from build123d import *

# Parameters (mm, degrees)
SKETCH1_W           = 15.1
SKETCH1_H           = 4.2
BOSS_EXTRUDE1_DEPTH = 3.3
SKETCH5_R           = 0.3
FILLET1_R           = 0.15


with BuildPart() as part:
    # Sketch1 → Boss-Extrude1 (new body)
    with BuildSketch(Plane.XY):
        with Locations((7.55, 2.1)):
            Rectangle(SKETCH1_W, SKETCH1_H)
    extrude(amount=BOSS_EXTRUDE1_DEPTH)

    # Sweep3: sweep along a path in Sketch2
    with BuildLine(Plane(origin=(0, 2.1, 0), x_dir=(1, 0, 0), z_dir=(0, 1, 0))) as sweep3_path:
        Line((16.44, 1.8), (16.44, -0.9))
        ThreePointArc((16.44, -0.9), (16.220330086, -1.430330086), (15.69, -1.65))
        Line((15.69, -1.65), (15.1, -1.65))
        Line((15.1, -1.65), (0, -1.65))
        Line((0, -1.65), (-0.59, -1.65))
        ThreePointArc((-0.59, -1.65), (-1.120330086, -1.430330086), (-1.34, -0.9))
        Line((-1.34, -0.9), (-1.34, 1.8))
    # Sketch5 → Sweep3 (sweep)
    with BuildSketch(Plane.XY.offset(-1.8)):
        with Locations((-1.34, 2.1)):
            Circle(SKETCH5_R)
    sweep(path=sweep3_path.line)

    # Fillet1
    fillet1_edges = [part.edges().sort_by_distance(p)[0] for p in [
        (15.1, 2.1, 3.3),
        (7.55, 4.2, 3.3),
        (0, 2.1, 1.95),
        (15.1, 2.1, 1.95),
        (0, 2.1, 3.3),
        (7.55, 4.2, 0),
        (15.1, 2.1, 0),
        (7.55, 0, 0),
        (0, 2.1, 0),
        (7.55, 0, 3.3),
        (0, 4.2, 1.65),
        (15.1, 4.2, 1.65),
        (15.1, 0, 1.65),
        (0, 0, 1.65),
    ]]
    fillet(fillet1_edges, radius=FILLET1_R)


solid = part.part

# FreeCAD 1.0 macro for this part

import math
import FreeCAD as App
import Part
import Sketcher
from FreeCAD import Vector
Q = App.Units.Quantity


def edges_at(feature, points):
    """Names of the edges that pass closest to the given points."""
    edges = feature.Shape.Edges
    near = lambda p: min(range(len(edges)), key=lambda i: edges[i].distToShape(Part.Vertex(*p))[0])
    return sorted({f"Edge{near(p) + 1}" for p in points})


def add_polygon(sketch, points):
    """Adds a closed chain of lines whose ends are joined by coincident constraints."""
    first, n = sketch.GeometryCount, len(points)
    for a, b in zip(points, points[1:] + points[:1]):
        sketch.addGeometry(Part.LineSegment(App.Vector(*a, 0), App.Vector(*b, 0)), False)
    for i in range(n):
        sketch.addConstraint(Sketcher.Constraint("Coincident", first + i, 2, first + (i + 1) % n, 1))

doc = App.newDocument("Part")
params = doc.addObject("Spreadsheet::Sheet", "Params")
for row, (alias, value) in enumerate([
    ("sketch1_width", "15.1 mm"),
    ("sketch1_height", "4.2 mm"),
    ("pad1_length", "3.3 mm"),
    ("sketch2_diameter", "0.6 mm"),
    ("sketch3_radius", "0.75 mm"),
    ("sketch3_height", "2.7 mm"),
    ("sketch3_width", "16.28 mm"),
    ("fillet_radius", "0.15 mm"),
], start=1):
    params.set(f"A{row}", alias)
    params.set(f"B{row}", "=" + value)
    params.setAlias(f"B{row}", alias)

body = doc.addObject("PartDesign::Body", "Body")

# Sketch on XY plane
sketch1 = doc.addObject("Sketcher::SketchObject", "Sketch")
body.addObject(sketch1)
sketch1.AttachmentSupport = (doc.XY_Plane, [""])
sketch1.MapMode = "FlatFace"
add_polygon(sketch1, [(0, 4.2), (0, 0), (15.1, 0), (15.1, 4.2)])  # lines 0-3
sketch1.addConstraint([
    Sketcher.Constraint("Vertical", 0),
    Sketcher.Constraint("Horizontal", 1),
    Sketcher.Constraint("Vertical", 2),
    Sketcher.Constraint("Horizontal", 3),
    Sketcher.Constraint("Coincident", 0, 2, -1, 1),
    Sketcher.Constraint("DistanceX", 1, 1, 1, 2, Q("15.1 mm")),
    Sketcher.Constraint("DistanceY", 0, 2, 0, 1, Q("4.2 mm")),
])
sketch1.setExpression("Constraints[9]", "Params.sketch1_width")
sketch1.setExpression("Constraints[10]", "Params.sketch1_height")
pad1 = doc.addObject("PartDesign::Pad", "Pad")
body.addObject(pad1)
pad1.Profile = sketch1
pad1.setExpression("Length", "Params.pad1_length")

# Sketch on XY plane
sketch2 = doc.addObject("Sketcher::SketchObject", "Sketch001")
body.addObject(sketch2)
sketch2.AttachmentSupport = (doc.XY_Plane, [""])
sketch2.MapMode = "FlatFace"
sketch2.AttachmentOffset = App.Placement(Vector(0, 0, -1.8), App.Rotation())
sketch2.addGeometry(Part.Circle(Vector(-1.34, 2.1, 0), Vector(0, 0, 1), 0.3), False)
sketch2.addConstraint([
    Sketcher.Constraint("Diameter", 0, Q("0.6 mm")),
    Sketcher.Constraint("DistanceY", -1, 1, 0, 3, Q("2.1 mm")),
    Sketcher.Constraint("DistanceX", 0, 3, -1, 1, Q("1.34 mm")),
])
sketch2.setExpression("Constraints[0]", "Params.sketch2_diameter")

# Sketch on XZ plane
sketch3 = doc.addObject("Sketcher::SketchObject", "Sketch002")
body.addObject(sketch3)
sketch3.AttachmentSupport = (doc.XZ_Plane, [""])
sketch3.MapMode = "FlatFace"
sketch3.AttachmentOffset = App.Placement(Vector(0, 0, -2.1), App.Rotation())
sketch3.addGeometry([
    Part.LineSegment(Vector(16.44, -1.8, 0), Vector(16.44, 0.9, 0)),  # 0
    Part.ArcOfCircle(Part.Circle(Vector(15.69, 0.9, 0), Vector(0, 0, 1), 0.75), math.radians(0), math.radians(90)),  # 1
    Part.LineSegment(Vector(15.69, 1.65, 0), Vector(-0.59, 1.65, 0)),  # 2
    Part.ArcOfCircle(Part.Circle(Vector(-0.59, 0.9, 0), Vector(0, 0, 1), 0.75), math.radians(90), math.radians(180)),  # 3
    Part.LineSegment(Vector(-1.34, 0.9, 0), Vector(-1.34, -1.8, 0)),  # 4
], False)
sketch3.addConstraint([
    Sketcher.Constraint("Tangent", 0, 2, 1, 1),
    Sketcher.Constraint("Tangent", 1, 2, 2, 1),
    Sketcher.Constraint("Tangent", 2, 2, 3, 1),
    Sketcher.Constraint("Tangent", 3, 2, 4, 1),
    Sketcher.Constraint("Vertical", 0),
    Sketcher.Constraint("Horizontal", 2),
    Sketcher.Constraint("Vertical", 4),
    Sketcher.Constraint("Equal", 1, 3),
    Sketcher.Constraint("Horizontal", 0, 1, 4, 2),
    Sketcher.Constraint("Radius", 1, Q("0.75 mm")),
    Sketcher.Constraint("DistanceY", 0, 1, 0, 2, Q("2.7 mm")),
    Sketcher.Constraint("DistanceX", 2, 2, 2, 1, Q("16.28 mm")),
    Sketcher.Constraint("DistanceY", -1, 1, 1, 3, Q("0.9 mm")),
    Sketcher.Constraint("DistanceX", -1, 1, 1, 3, Q("15.69 mm")),
])
sketch3.setExpression("Constraints[9]", "Params.sketch3_radius")
sketch3.setExpression("Constraints[10]", "Params.sketch3_height")
sketch3.setExpression("Constraints[11]", "Params.sketch3_width")
doc.recompute()

additivepipe = doc.addObject("PartDesign::AdditivePipe", "AdditivePipe")
body.addObject(additivepipe)
additivepipe.Profile = sketch2
additivepipe.Spine = (sketch3, ["Edge1", "Edge2", "Edge3", "Edge4", "Edge5"])
doc.recompute()

fillet = doc.addObject("PartDesign::Fillet", "Fillet")
body.addObject(fillet)
fillet.Base = (additivepipe, edges_at(additivepipe, [
    (15.1, 2.1, 3.3),
    (7.55, 4.2, 3.3),
    (0, 2.1, 1.95),
    (15.1, 2.1, 1.95),
    (0, 2.1, 3.3),
    (7.55, 4.2, 0),
    (15.1, 2.1, 0),
    (7.55, 0, 0),
    (0, 2.1, 0),
    (7.55, 0, 3.3),
    (0, 4.2, 1.65),
    (15.1, 4.2, 1.65),
    (15.1, 0, 1.65),
    (0, 0, 1.65),
]))
fillet.setExpression("Radius", "Params.fillet_radius")

doc.recompute()
